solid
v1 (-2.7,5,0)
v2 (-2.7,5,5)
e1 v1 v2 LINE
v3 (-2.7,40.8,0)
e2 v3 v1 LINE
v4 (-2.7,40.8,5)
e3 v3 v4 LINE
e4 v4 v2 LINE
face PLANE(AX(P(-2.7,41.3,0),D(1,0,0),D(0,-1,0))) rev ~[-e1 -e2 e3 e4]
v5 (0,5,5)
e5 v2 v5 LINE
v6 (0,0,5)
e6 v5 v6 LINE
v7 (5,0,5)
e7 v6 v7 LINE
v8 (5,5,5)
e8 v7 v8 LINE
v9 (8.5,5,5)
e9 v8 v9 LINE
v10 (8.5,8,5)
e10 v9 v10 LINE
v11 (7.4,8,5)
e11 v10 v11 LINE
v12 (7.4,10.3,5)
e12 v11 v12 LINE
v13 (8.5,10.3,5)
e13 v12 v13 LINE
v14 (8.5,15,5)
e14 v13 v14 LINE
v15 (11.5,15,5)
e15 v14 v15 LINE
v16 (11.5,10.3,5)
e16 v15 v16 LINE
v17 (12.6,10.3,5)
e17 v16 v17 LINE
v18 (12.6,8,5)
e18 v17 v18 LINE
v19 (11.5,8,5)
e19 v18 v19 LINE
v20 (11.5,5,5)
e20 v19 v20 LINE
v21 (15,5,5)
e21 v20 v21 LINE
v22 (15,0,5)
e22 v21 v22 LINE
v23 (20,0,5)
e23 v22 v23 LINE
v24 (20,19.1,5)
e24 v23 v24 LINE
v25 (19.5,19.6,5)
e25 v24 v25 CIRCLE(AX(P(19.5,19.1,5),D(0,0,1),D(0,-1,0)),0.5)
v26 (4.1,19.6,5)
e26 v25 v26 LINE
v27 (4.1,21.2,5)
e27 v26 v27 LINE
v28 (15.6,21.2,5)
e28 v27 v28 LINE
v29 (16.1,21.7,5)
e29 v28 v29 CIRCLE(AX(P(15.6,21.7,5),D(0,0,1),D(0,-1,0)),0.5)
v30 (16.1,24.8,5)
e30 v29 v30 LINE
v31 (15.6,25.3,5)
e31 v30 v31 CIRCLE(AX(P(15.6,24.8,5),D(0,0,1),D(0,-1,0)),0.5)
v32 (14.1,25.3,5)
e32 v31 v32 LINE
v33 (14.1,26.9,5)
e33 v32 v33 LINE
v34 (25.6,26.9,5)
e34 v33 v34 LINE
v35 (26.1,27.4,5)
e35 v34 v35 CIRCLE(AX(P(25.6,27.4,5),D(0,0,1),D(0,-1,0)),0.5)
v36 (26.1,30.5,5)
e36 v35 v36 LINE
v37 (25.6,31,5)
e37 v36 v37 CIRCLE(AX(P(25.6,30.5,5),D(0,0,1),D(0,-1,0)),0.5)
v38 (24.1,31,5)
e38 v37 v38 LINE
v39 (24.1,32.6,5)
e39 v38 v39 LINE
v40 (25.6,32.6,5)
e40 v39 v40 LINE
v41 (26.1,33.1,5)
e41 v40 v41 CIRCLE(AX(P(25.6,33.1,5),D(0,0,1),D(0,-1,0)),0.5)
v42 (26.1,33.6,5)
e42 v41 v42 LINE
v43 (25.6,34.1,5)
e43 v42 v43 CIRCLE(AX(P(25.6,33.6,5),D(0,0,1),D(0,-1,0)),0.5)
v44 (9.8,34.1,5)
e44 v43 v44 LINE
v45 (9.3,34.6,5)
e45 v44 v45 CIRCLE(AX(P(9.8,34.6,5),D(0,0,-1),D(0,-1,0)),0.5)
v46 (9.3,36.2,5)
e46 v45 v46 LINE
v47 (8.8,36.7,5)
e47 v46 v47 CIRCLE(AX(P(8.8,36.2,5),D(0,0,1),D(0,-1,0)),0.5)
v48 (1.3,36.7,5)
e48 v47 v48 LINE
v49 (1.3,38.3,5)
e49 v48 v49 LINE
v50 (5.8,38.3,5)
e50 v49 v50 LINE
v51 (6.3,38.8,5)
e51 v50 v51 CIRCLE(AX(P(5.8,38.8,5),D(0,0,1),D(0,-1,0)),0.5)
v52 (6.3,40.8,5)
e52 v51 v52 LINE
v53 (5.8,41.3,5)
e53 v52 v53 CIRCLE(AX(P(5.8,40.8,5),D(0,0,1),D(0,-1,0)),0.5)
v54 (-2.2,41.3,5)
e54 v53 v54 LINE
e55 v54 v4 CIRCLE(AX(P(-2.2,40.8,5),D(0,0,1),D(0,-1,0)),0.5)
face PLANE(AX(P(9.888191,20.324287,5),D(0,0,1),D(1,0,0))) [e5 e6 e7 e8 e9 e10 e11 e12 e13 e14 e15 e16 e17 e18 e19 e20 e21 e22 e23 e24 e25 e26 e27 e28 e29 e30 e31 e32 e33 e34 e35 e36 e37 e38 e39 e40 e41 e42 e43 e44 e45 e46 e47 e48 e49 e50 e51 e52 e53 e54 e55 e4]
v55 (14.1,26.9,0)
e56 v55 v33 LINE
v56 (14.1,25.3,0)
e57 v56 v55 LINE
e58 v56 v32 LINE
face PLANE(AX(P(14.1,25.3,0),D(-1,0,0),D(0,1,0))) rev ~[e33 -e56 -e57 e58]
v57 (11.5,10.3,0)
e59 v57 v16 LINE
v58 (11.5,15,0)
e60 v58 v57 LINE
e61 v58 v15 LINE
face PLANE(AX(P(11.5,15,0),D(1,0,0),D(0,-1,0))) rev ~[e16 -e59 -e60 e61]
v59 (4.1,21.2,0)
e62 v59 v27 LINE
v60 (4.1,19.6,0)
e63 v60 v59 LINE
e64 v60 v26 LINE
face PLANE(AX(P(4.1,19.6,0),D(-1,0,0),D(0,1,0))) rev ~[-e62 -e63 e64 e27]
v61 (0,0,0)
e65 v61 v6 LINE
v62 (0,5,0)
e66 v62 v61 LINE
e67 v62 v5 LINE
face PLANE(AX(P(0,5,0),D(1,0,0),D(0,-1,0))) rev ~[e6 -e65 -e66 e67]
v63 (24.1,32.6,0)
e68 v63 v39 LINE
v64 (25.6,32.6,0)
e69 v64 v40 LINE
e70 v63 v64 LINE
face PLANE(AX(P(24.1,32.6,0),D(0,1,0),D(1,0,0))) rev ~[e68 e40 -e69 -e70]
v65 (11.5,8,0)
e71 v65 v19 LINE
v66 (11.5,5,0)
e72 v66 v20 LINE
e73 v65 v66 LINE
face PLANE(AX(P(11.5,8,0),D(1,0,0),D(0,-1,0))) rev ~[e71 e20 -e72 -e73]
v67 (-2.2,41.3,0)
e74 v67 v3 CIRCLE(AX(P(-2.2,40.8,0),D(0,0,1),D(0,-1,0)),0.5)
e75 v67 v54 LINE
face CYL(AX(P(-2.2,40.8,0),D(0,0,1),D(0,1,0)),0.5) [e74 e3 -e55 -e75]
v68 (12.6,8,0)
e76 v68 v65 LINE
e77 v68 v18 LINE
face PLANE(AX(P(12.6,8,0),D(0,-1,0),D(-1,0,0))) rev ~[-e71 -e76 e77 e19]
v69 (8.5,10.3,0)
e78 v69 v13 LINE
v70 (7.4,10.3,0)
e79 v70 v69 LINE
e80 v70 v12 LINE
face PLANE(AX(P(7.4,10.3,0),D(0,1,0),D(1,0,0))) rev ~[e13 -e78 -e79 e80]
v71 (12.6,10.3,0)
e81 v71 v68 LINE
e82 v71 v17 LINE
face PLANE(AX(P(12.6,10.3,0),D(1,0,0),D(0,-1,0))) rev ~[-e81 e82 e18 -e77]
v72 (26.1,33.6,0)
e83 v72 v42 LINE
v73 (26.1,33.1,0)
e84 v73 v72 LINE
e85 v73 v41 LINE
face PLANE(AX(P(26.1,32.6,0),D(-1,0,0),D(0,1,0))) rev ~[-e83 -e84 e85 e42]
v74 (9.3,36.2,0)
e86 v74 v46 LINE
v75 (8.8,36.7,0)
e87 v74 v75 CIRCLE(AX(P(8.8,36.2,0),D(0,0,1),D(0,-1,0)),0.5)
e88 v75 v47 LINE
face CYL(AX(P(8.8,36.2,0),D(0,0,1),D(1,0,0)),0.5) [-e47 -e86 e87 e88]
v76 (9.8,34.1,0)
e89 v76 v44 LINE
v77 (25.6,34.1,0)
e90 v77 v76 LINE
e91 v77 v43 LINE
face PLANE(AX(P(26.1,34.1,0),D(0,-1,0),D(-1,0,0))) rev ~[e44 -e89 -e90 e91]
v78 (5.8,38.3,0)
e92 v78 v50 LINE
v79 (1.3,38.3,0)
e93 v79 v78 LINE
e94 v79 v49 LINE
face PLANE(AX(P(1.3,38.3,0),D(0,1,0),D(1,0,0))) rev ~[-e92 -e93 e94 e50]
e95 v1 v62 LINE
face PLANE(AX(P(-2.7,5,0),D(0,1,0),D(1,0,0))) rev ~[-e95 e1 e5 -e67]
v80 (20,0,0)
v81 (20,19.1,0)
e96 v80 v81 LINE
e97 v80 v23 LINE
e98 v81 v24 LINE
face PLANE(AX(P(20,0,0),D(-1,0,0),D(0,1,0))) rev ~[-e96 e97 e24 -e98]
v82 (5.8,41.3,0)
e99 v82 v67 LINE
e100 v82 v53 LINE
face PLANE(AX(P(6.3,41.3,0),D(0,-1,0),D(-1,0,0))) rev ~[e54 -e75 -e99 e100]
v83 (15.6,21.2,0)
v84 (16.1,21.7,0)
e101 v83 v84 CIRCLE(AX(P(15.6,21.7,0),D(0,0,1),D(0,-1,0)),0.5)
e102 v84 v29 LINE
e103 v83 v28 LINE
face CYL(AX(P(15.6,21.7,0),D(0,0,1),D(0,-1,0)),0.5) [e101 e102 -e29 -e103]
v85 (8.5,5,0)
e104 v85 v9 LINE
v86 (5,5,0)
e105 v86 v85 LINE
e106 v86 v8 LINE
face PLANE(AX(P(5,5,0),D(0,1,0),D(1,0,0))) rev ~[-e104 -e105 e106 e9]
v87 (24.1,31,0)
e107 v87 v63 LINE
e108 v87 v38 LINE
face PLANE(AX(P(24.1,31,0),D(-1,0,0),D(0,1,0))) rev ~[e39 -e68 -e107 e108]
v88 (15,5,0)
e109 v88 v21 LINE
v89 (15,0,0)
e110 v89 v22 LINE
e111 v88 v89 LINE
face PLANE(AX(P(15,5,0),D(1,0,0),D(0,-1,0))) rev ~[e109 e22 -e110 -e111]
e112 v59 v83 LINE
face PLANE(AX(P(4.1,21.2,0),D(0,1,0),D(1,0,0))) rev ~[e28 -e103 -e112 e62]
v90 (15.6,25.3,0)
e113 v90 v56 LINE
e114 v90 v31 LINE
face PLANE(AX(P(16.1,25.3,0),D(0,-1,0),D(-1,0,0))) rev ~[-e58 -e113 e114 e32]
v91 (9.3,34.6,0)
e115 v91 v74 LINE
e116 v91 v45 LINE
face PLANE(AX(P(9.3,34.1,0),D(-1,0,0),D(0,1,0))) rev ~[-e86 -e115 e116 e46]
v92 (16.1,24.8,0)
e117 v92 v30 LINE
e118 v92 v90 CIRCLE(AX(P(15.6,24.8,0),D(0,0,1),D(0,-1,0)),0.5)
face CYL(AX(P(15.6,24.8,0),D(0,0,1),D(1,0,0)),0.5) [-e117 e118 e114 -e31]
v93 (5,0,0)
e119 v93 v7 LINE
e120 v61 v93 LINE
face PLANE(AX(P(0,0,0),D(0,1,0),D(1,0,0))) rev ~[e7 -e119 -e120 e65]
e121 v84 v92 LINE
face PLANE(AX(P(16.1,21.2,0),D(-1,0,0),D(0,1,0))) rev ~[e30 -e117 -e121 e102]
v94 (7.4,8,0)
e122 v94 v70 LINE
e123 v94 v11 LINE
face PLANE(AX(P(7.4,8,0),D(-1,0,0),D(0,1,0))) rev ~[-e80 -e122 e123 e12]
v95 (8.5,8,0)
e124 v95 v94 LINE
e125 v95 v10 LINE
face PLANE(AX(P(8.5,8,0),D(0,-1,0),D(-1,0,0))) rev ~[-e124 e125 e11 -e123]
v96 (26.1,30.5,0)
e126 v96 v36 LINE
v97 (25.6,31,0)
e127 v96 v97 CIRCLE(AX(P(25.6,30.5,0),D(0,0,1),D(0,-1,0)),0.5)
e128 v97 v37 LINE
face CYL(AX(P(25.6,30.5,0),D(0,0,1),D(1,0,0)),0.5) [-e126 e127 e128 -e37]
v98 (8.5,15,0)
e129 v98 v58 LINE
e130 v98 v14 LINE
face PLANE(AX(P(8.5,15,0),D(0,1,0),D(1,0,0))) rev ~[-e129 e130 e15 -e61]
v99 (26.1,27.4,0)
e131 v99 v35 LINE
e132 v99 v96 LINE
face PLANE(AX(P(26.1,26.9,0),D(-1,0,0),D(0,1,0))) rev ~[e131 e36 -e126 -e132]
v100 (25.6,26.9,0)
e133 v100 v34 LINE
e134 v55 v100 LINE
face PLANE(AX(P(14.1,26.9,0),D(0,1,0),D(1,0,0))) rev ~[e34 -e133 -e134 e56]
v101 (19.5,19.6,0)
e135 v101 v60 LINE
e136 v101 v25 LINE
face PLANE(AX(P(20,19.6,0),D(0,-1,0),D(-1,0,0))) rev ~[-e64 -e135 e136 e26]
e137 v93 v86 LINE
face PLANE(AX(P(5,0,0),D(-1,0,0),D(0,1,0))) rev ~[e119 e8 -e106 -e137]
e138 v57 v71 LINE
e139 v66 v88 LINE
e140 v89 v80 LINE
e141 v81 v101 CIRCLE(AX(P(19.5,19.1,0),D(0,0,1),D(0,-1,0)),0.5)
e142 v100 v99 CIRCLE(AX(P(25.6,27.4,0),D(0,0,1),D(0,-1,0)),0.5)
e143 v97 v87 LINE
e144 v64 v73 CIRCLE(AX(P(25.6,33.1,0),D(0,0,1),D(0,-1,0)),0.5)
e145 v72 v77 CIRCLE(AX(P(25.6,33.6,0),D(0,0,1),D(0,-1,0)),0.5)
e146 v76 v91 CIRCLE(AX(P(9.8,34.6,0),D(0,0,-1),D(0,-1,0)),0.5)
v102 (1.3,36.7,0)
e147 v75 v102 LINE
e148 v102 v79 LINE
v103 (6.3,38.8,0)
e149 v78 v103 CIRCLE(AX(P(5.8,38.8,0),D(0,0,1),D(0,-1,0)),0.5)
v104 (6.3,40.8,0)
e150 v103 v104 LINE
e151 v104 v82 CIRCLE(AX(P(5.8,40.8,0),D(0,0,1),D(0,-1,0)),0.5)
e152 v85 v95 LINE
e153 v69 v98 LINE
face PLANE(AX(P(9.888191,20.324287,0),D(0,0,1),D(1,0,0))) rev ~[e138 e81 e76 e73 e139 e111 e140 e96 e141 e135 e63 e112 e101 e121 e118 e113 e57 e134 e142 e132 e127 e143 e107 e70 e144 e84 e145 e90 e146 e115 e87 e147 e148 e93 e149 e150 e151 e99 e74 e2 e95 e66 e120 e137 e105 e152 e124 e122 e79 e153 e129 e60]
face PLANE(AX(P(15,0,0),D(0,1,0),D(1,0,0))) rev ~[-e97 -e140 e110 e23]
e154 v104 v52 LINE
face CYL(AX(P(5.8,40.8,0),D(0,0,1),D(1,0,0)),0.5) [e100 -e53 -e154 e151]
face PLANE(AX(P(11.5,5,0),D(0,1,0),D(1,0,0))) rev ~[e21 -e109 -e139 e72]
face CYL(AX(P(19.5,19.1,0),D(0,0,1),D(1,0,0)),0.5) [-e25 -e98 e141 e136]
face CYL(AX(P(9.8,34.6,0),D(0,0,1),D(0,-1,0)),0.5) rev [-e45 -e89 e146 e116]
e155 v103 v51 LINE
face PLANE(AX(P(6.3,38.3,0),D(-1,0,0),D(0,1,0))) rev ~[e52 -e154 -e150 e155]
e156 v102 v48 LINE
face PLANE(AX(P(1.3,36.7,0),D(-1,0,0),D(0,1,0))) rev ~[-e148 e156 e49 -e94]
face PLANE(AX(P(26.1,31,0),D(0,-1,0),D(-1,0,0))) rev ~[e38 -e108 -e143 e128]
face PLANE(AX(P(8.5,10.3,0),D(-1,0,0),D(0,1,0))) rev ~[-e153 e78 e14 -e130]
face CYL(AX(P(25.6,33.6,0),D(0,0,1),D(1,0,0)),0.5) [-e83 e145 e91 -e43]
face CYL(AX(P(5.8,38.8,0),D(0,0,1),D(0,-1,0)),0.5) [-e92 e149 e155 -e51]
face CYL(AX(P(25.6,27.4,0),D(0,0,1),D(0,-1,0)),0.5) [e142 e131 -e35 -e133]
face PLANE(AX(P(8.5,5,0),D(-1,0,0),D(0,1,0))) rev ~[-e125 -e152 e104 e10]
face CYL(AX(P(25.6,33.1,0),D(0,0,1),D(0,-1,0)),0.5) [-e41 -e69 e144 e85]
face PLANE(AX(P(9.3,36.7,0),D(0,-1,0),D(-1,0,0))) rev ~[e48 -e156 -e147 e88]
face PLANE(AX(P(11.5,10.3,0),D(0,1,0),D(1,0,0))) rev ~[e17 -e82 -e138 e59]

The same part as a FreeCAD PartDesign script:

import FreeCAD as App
import Part
import Sketcher
Q = App.Units.Quantity


def edges_at(feature, points):
    """Names of the edges that pass closest to the given points."""
    edges = feature.Shape.Edges
    near = lambda p: min(range(len(edges)), key=lambda i: edges[i].distToShape(Part.Vertex(*p))[0])
    return sorted({f"Edge{near(p) + 1}" for p in points})


def add_polygon(sketch, points):
    """Adds a closed chain of lines whose ends are joined by coincident constraints."""
    first, n = sketch.GeometryCount, len(points)
    for a, b in zip(points, points[1:] + points[:1]):
        sketch.addGeometry(Part.LineSegment(App.Vector(*a, 0), App.Vector(*b, 0)), False)
    for i in range(n):
        sketch.addConstraint(Sketcher.Constraint("Coincident", first + i, 2, first + (i + 1) % n, 1))

doc = App.newDocument("Part")
body = doc.addObject("PartDesign::Body", "Body")

sketch1 = body.newObject("Sketcher::SketchObject", "Sketch")
sketch1.AttachmentSupport = (doc.getObject("XY_Plane"), [""])
sketch1.MapMode = "FlatFace"
add_polygon(sketch1, [(4.1, 19.6), (4.1, 21.2), (16.1, 21.2), (16.1, 25.3), (14.1, 25.3), (14.1, 26.9), (26.1, 26.9), (26.1, 31), (24.1, 31), (24.1, 32.6), (26.1, 32.6), (26.1, 34.1), (9.3, 34.1), (9.3, 36.7), (1.3, 36.7), (1.3, 38.3), (6.3, 38.3), (6.3, 41.3), (-2.7, 41.3), (-2.7, 5), (0, 5), (0, 0), (5, 0), (5, 5), (8.5, 5), (8.5, 8), (7.4, 8), (7.4, 10.3), (8.5, 10.3), (8.5, 15), (11.5, 15), (11.5, 10.3), (12.6, 10.3), (12.6, 8), (11.5, 8), (11.5, 5), (15, 5), (15, 0), (20, 0), (20, 19.6)])
sketch1.addConstraint([
    Sketcher.Constraint("Vertical", 0),
    Sketcher.Constraint("Horizontal", 1),
    Sketcher.Constraint("Vertical", 2),
    Sketcher.Constraint("Horizontal", 3),
    Sketcher.Constraint("Vertical", 4),
    Sketcher.Constraint("Horizontal", 5),
    Sketcher.Constraint("Vertical", 6),
    Sketcher.Constraint("Horizontal", 7),
    Sketcher.Constraint("Vertical", 8),
    Sketcher.Constraint("Horizontal", 9),
    Sketcher.Constraint("Vertical", 10),
    Sketcher.Constraint("Horizontal", 11),
    Sketcher.Constraint("Vertical", 12),
    Sketcher.Constraint("Horizontal", 13),
    Sketcher.Constraint("Vertical", 14),
    Sketcher.Constraint("Horizontal", 15),
    Sketcher.Constraint("Vertical", 16),
    Sketcher.Constraint("Horizontal", 17),
    Sketcher.Constraint("Vertical", 18),
    Sketcher.Constraint("Horizontal", 19),
    Sketcher.Constraint("Vertical", 20),
    Sketcher.Constraint("Horizontal", 21),
    Sketcher.Constraint("Vertical", 22),
    Sketcher.Constraint("Horizontal", 23),
    Sketcher.Constraint("Vertical", 24),
    Sketcher.Constraint("Horizontal", 25),
    Sketcher.Constraint("Vertical", 26),
    Sketcher.Constraint("Horizontal", 27),
    Sketcher.Constraint("Vertical", 28),
    Sketcher.Constraint("Horizontal", 29),
    Sketcher.Constraint("Vertical", 30),
    Sketcher.Constraint("Horizontal", 31),
    Sketcher.Constraint("Vertical", 32),
    Sketcher.Constraint("Horizontal", 33),
    Sketcher.Constraint("Vertical", 34),
    Sketcher.Constraint("Horizontal", 35),
    Sketcher.Constraint("Vertical", 36),
    Sketcher.Constraint("Horizontal", 37),
    Sketcher.Constraint("Vertical", 38),
    Sketcher.Constraint("Horizontal", 39),
    Sketcher.Constraint("Coincident", 20, 2, -1, 1),
    Sketcher.Constraint("PointOnObject", 36, 2, -1),
    Sketcher.Constraint("Horizontal", 19, 2, 22, 2),
    Sketcher.Constraint("Horizontal", 27, 2, 30, 2),
    Sketcher.Constraint("Horizontal", 25, 2, 32, 2),
    Sketcher.Constraint("Horizontal", 23, 2, 34, 2),
    Sketcher.Constraint("Vertical", 6, 2, 9, 2),
    Sketcher.Constraint("Vertical", 24, 2, 27, 2),
    Sketcher.Constraint("Vertical", 30, 2, 33, 2),
    Sketcher.Constraint("Equal", 1, 5),
    Sketcher.Constraint("Equal", 3, 7),
    Sketcher.Constraint("Equal", 15, 21),
    Sketcher.Constraint("Equal", 27, 31),
    Sketcher.Constraint("Equal", 23, 35),
    Sketcher.Constraint("Equal", 21, 37),
    Sketcher.Constraint("Equal", 0, 4),
    Sketcher.Constraint("Equal", 2, 6),
    Sketcher.Constraint("Equal", 4, 8),
    Sketcher.Constraint("Equal", 8, 14),
    Sketcher.Constraint("Equal", 29, 16),
    Sketcher.Constraint("Equal", 37, 20),
    Sketcher.Constraint("Equal", 16, 24),
    Sketcher.Constraint("DistanceX", 1, 1, 1, 2, Q("12 mm")),
    Sketcher.Constraint("DistanceX", 3, 2, 3, 1, Q("2 mm")),
    Sketcher.Constraint("DistanceX", 13, 2, 13, 1, Q("8 mm")),
    Sketcher.Constraint("DistanceX", 15, 1, 15, 2, Q("5 mm")),
    Sketcher.Constraint("DistanceX", 17, 2, 17, 1, Q("9 mm")),
    Sketcher.Constraint("DistanceX", 29, 1, 29, 2, Q("3 mm")),
    Sketcher.Constraint("DistanceX", 11, 2, 11, 1, Q("16.8 mm")),
    Sketcher.Constraint("DistanceX", 19, 1, 19, 2, Q("2.7 mm")),
    Sketcher.Constraint("DistanceX", 23, 1, 23, 2, Q("3.5 mm")),
    Sketcher.Constraint("DistanceX", 25, 2, 25, 1, Q("1.1 mm")),
    Sketcher.Constraint("DistanceY", 0, 1, 0, 2, Q("1.6 mm")),
    Sketcher.Constraint("DistanceY", 2, 1, 2, 2, Q("4.1 mm")),
    Sketcher.Constraint("DistanceY", 10, 1, 10, 2, Q("1.5 mm")),
    Sketcher.Constraint("DistanceY", 12, 1, 12, 2, Q("2.6 mm")),
    Sketcher.Constraint("DistanceY", 18, 2, 18, 1, Q("36.3 mm")),
    Sketcher.Constraint("DistanceY", 26, 1, 26, 2, Q("2.3 mm")),
    Sketcher.Constraint("DistanceY", 28, 1, 28, 2, Q("4.7 mm")),
])
pad1 = body.newObject("PartDesign::Pad", "Pad")
pad1.Profile = sketch1
pad1.Length = 5
doc.recompute()

fillet = body.newObject("PartDesign::Fillet", "Fillet")
fillet.Base = (pad1, edges_at(pad1, [
    (-2.7, 41.3, 2.5),
    (6.3, 41.3, 2.5),
    (6.3, 38.3, 2.5),
    (9.3, 36.7, 2.5),
    (9.3, 34.1, 2.5),
    (26.1, 34.1, 2.5),
    (26.1, 32.6, 2.5),
    (26.1, 31, 2.5),
    (26.1, 26.9, 2.5),
    (16.1, 25.3, 2.5),
    (16.1, 21.2, 2.5),
    (20, 19.6, 2.5),
]))
fillet.Radius = 0.5

doc.recompute()
